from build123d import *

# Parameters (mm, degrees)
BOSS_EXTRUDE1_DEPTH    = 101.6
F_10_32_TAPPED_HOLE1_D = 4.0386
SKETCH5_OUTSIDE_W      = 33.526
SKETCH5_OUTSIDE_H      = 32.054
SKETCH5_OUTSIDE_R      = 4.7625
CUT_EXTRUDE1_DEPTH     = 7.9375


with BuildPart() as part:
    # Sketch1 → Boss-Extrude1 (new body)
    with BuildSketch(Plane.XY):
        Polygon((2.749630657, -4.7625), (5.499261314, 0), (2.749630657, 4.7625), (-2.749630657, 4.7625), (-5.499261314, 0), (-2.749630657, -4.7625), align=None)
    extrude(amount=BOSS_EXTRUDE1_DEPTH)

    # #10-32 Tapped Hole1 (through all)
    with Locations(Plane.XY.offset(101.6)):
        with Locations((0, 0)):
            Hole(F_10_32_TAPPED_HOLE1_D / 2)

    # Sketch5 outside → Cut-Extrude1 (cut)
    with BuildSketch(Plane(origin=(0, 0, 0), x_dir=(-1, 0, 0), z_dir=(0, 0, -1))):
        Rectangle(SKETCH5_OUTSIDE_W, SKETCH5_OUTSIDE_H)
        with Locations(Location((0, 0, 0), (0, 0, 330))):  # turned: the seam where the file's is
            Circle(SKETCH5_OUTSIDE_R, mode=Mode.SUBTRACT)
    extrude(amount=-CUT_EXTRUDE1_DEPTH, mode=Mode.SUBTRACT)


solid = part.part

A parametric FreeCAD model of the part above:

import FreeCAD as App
import Part
import Sketcher

V = App.Vector
Q = App.Units.Quantity


def add_polygon(sketch, points):
    """Adds a closed chain of lines whose ends are joined by coincident constraints."""
    first, n = sketch.GeometryCount, len(points)
    for a, b in zip(points, points[1:] + points[:1]):
        sketch.addGeometry(Part.LineSegment(App.Vector(*a, 0), App.Vector(*b, 0)), False)
    for i in range(n):
        sketch.addConstraint(Sketcher.Constraint("Coincident", first + i, 2, first + (i + 1) % n, 1))

doc = App.newDocument("Part")
body = doc.addObject("PartDesign::Body", "Body")

# Sketch on XY plane
sketch1 = body.newObject("Sketcher::SketchObject", "Sketch")
sketch1.AttachmentSupport = (doc.getObject("XY_Plane"), [""])
sketch1.MapMode = "FlatFace"
add_polygon(sketch1, [(3, -5), (5, 0), (3, 5), (-3, 5), (-5, 0), (-3, -5)])  # lines 0-5
sketch1.addConstraint(Sketcher.Constraint("Horizontal", 2))
sketch1.addConstraint(Sketcher.Constraint("Horizontal", 5))
sketch1.addConstraint(Sketcher.Constraint("Symmetric", 0, 2, 3, 2, -1, 1))
sketch1.addConstraint(Sketcher.Constraint("Symmetric", 1, 2, 4, 2, -1, 1))
sketch1.addConstraint(Sketcher.Constraint("PointOnObject", 0, 2, -1))
sketch1.addConstraint(Sketcher.Constraint("Parallel", 0, 3))
sketch1.addConstraint(Sketcher.Constraint("Vertical", 2, 2, 4, 2))
sketch1.addConstraint(Sketcher.Constraint("Angle", 0, Q("60 deg")))
sketch1.addConstraint(Sketcher.Constraint("DistanceY", -1, 1, 1, 2, Q("0.1875 in")))
sketch1.addConstraint(Sketcher.Constraint("DistanceX", 2, 2, 2, 1, Q("5.499261 mm")))
pad1 = body.newObject("PartDesign::Pad", "Pad")
pad1.Profile = sketch1
pad1.Length = Q("4 in")

# Sketch on XY plane
sketch2 = body.newObject("Sketcher::SketchObject", "Sketch001")
sketch2.AttachmentSupport = (doc.getObject("XY_Plane"), [""])
sketch2.MapMode = "FlatFace"
sketch2.AttachmentOffset = App.Placement(V(0, 0, 4 * 25.4), App.Rotation())
sketch2.addGeometry(Part.Circle(V(0, 0, 0), V(0, 0, 1), 2), False)
sketch2.addConstraint(Sketcher.Constraint("Coincident", 0, 3, -1, 1))
sketch2.addConstraint(Sketcher.Constraint("Diameter", 0, Q("0.159 in")))
doc.recompute()
hole = body.newObject("PartDesign::Hole", "Hole")
hole.Profile = sketch2
hole.ThreadType = "None"
hole.Diameter = Q("0.159 in")
hole.DepthType = "ThroughAll"

# Sketch on XY plane
sketch3 = body.newObject("Sketcher::SketchObject", "Sketch002")
sketch3.AttachmentSupport = (doc.getObject("XY_Plane"), [""])
sketch3.MapMode = "FlatFace"
add_polygon(sketch3, [(16.8, 16), (16.8, -16), (-16.8, -16), (-16.8, 16)])  # lines 0-3
sketch3.addGeometry(Part.Circle(V(0, 0, 0), V(0, 0, 1), 4.8), False)  # 4
sketch3.addConstraint(Sketcher.Constraint("Vertical", 0))
sketch3.addConstraint(Sketcher.Constraint("Horizontal", 1))
sketch3.addConstraint(Sketcher.Constraint("Vertical", 2))
sketch3.addConstraint(Sketcher.Constraint("Horizontal", 3))
sketch3.addConstraint(Sketcher.Constraint("Coincident", 4, 3, -1, 1))
sketch3.addConstraint(Sketcher.Constraint("Symmetric", 0, 2, 2, 2, -1, 1))
sketch3.addConstraint(Sketcher.Constraint("Diameter", 4, Q("0.375 in")))
sketch3.addConstraint(Sketcher.Constraint("DistanceX", 1, 2, 1, 1, Q("33.526 mm")))
sketch3.addConstraint(Sketcher.Constraint("DistanceY", 0, 2, 0, 1, Q("32.054 mm")))
pocket1 = body.newObject("PartDesign::Pocket", "Pocket")
pocket1.Profile = sketch3
pocket1.Length = Q("0.3125 in")
pocket1.Reversed = True

doc.recompute()
